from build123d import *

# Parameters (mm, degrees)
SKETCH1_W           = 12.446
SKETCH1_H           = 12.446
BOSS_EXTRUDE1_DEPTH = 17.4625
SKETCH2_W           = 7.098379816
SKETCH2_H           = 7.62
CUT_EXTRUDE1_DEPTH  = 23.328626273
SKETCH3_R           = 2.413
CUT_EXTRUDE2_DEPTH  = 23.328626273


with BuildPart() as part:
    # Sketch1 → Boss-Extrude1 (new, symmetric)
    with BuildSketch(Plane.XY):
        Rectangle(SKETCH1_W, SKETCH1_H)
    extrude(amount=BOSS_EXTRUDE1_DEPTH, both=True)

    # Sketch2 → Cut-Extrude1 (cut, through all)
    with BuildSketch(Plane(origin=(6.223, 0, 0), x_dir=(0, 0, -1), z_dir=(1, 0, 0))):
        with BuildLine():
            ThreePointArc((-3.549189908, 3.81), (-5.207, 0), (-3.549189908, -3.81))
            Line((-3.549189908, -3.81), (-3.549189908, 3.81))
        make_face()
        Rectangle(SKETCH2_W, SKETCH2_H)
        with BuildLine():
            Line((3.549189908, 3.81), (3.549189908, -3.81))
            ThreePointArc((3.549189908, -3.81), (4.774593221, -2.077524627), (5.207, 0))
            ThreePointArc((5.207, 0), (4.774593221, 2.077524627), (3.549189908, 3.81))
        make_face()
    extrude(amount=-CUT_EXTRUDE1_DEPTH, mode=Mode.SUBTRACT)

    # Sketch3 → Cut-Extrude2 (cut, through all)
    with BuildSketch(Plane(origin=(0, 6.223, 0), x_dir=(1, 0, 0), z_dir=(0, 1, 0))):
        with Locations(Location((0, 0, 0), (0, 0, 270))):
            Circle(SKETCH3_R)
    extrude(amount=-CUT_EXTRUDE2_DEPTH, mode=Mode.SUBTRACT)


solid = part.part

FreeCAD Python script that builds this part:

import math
import FreeCAD as App
import Part
import Sketcher

V = App.Vector
Q = App.Units.Quantity

doc = App.newDocument("Part")
params = doc.addObject("Spreadsheet::Sheet", "Params")
for row, (alias, value) in enumerate([
    ("sketch1_width", "0.49 in"),
    ("pad1_length", "1.375 in"),
    ("sketch2_radius", "0.205 in"),
    ("sketch3_diameter", "0.19 in"),
], start=1):
    params.set(f"A{row}", alias)
    params.set(f"B{row}", "=" + value)
    params.setAlias(f"B{row}", alias)

body = doc.addObject("PartDesign::Body", "Body")

sketch1 = body.newObject("Sketcher::SketchObject", "Sketch")
sketch1.AttachmentSupport = (doc.getObject("XY_Plane"), [""])
sketch1.MapMode = "FlatFace"
sketch1.addGeometry([
    Part.LineSegment(V(-6, 6, 0), V(-6, -6, 0)),
    Part.LineSegment(V(-6, -6, 0), V(6, -6, 0)),
    Part.LineSegment(V(6, -6, 0), V(6, 6, 0)),
    Part.LineSegment(V(6, 6, 0), V(-6, 6, 0)),
], False)
sketch1.addConstraint([
    Sketcher.Constraint("Coincident", 0, 2, 1, 1),
    Sketcher.Constraint("Coincident", 1, 2, 2, 1),
    Sketcher.Constraint("Coincident", 2, 2, 3, 1),
    Sketcher.Constraint("Coincident", 3, 2, 0, 1),
    Sketcher.Constraint("Vertical", 0),
    Sketcher.Constraint("Horizontal", 1),
    Sketcher.Constraint("Vertical", 2),
    Sketcher.Constraint("Horizontal", 3),
    Sketcher.Constraint("Symmetric", 0, 2, 2, 2, -1, 1),
    Sketcher.Constraint("Equal", 3, 0),
    Sketcher.Constraint("DistanceX", 1, 1, 1, 2, Q("0.49 in")),
])
sketch1.setExpression("Constraints[10]", "Params.sketch1_width")
pad1 = body.newObject("PartDesign::Pad", "Pad")
pad1.Profile = sketch1
pad1.setExpression("Length", "Params.pad1_length")
pad1.Midplane = True

sketch2 = body.newObject("Sketcher::SketchObject", "Sketch001")
sketch2.AttachmentSupport = (doc.getObject("YZ_Plane"), [""])
sketch2.MapMode = "FlatFace"
sketch2.AttachmentOffset = App.Placement(V(0, 0, 0.245 * 25.4), App.Rotation())
sketch2.addGeometry([
    Part.ArcOfCircle(Part.Circle(V(0, 0, 0), V(0, 0, 1), 5.2), math.radians(43), math.radians(137)),
    Part.LineSegment(V(-3.8, 3.5, 0), V(-3.8, -3.5, 0)),
    Part.ArcOfCircle(Part.Circle(V(0, 0, 0), V(0, 0, 1), 5.2), math.radians(-137), math.radians(-90)),
    Part.ArcOfCircle(Part.Circle(V(0, 0, 0), V(0, 0, 1), 5.2), math.radians(-90), math.radians(-43)),
    Part.LineSegment(V(3.8, -3.5, 0), V(3.8, 3.5, 0)),
], False)
sketch2.addConstraint([
    Sketcher.Constraint("Coincident", 0, 2, 1, 1),
    Sketcher.Constraint("Coincident", 1, 2, 2, 1),
    Sketcher.Constraint("Tangent", 2, 2, 3, 1),
    Sketcher.Constraint("Coincident", 3, 2, 4, 1),
    Sketcher.Constraint("Coincident", 4, 2, 0, 1),
    Sketcher.Constraint("Vertical", 1),
    Sketcher.Constraint("Vertical", 4),
    Sketcher.Constraint("Coincident", 0, 3, -1, 1),
    Sketcher.Constraint("Coincident", 2, 3, -1, 1),
    Sketcher.Constraint("Equal", 0, 2),
    Sketcher.Constraint("Equal", 2, 3),
    Sketcher.Constraint("PointOnObject", 2, 2, -2),
    Sketcher.Constraint("Horizontal", 1, 2, 3, 2),
    Sketcher.Constraint("Radius", 0, Q("0.205 in")),
    Sketcher.Constraint("DistanceX", 1, 2, 3, 2, Q("0.3 in")),
])
sketch2.setExpression("Constraints[13]", "Params.sketch2_radius")
pocket1 = body.newObject("PartDesign::Pocket", "Pocket")
pocket1.Profile = sketch2
pocket1.Type = "ThroughAll"

sketch3 = body.newObject("Sketcher::SketchObject", "Sketch002")
sketch3.AttachmentSupport = (doc.getObject("XZ_Plane"), [""])
sketch3.MapMode = "FlatFace"
sketch3.AttachmentOffset = App.Placement(V(0, 0, -0.245 * 25.4), App.Rotation())
sketch3.addGeometry(Part.Circle(V(0, 0, 0), V(0, 0, 1), 2.4), False)
sketch3.addConstraint([
    Sketcher.Constraint("Coincident", 0, 3, -1, 1),
    Sketcher.Constraint("Diameter", 0, Q("0.19 in")),
])
sketch3.setExpression("Constraints[1]", "Params.sketch3_diameter")
pocket2 = body.newObject("PartDesign::Pocket", "Pocket001")
pocket2.Profile = sketch3
pocket2.Type = "ThroughAll"
pocket2.Reversed = True

doc.recompute()
